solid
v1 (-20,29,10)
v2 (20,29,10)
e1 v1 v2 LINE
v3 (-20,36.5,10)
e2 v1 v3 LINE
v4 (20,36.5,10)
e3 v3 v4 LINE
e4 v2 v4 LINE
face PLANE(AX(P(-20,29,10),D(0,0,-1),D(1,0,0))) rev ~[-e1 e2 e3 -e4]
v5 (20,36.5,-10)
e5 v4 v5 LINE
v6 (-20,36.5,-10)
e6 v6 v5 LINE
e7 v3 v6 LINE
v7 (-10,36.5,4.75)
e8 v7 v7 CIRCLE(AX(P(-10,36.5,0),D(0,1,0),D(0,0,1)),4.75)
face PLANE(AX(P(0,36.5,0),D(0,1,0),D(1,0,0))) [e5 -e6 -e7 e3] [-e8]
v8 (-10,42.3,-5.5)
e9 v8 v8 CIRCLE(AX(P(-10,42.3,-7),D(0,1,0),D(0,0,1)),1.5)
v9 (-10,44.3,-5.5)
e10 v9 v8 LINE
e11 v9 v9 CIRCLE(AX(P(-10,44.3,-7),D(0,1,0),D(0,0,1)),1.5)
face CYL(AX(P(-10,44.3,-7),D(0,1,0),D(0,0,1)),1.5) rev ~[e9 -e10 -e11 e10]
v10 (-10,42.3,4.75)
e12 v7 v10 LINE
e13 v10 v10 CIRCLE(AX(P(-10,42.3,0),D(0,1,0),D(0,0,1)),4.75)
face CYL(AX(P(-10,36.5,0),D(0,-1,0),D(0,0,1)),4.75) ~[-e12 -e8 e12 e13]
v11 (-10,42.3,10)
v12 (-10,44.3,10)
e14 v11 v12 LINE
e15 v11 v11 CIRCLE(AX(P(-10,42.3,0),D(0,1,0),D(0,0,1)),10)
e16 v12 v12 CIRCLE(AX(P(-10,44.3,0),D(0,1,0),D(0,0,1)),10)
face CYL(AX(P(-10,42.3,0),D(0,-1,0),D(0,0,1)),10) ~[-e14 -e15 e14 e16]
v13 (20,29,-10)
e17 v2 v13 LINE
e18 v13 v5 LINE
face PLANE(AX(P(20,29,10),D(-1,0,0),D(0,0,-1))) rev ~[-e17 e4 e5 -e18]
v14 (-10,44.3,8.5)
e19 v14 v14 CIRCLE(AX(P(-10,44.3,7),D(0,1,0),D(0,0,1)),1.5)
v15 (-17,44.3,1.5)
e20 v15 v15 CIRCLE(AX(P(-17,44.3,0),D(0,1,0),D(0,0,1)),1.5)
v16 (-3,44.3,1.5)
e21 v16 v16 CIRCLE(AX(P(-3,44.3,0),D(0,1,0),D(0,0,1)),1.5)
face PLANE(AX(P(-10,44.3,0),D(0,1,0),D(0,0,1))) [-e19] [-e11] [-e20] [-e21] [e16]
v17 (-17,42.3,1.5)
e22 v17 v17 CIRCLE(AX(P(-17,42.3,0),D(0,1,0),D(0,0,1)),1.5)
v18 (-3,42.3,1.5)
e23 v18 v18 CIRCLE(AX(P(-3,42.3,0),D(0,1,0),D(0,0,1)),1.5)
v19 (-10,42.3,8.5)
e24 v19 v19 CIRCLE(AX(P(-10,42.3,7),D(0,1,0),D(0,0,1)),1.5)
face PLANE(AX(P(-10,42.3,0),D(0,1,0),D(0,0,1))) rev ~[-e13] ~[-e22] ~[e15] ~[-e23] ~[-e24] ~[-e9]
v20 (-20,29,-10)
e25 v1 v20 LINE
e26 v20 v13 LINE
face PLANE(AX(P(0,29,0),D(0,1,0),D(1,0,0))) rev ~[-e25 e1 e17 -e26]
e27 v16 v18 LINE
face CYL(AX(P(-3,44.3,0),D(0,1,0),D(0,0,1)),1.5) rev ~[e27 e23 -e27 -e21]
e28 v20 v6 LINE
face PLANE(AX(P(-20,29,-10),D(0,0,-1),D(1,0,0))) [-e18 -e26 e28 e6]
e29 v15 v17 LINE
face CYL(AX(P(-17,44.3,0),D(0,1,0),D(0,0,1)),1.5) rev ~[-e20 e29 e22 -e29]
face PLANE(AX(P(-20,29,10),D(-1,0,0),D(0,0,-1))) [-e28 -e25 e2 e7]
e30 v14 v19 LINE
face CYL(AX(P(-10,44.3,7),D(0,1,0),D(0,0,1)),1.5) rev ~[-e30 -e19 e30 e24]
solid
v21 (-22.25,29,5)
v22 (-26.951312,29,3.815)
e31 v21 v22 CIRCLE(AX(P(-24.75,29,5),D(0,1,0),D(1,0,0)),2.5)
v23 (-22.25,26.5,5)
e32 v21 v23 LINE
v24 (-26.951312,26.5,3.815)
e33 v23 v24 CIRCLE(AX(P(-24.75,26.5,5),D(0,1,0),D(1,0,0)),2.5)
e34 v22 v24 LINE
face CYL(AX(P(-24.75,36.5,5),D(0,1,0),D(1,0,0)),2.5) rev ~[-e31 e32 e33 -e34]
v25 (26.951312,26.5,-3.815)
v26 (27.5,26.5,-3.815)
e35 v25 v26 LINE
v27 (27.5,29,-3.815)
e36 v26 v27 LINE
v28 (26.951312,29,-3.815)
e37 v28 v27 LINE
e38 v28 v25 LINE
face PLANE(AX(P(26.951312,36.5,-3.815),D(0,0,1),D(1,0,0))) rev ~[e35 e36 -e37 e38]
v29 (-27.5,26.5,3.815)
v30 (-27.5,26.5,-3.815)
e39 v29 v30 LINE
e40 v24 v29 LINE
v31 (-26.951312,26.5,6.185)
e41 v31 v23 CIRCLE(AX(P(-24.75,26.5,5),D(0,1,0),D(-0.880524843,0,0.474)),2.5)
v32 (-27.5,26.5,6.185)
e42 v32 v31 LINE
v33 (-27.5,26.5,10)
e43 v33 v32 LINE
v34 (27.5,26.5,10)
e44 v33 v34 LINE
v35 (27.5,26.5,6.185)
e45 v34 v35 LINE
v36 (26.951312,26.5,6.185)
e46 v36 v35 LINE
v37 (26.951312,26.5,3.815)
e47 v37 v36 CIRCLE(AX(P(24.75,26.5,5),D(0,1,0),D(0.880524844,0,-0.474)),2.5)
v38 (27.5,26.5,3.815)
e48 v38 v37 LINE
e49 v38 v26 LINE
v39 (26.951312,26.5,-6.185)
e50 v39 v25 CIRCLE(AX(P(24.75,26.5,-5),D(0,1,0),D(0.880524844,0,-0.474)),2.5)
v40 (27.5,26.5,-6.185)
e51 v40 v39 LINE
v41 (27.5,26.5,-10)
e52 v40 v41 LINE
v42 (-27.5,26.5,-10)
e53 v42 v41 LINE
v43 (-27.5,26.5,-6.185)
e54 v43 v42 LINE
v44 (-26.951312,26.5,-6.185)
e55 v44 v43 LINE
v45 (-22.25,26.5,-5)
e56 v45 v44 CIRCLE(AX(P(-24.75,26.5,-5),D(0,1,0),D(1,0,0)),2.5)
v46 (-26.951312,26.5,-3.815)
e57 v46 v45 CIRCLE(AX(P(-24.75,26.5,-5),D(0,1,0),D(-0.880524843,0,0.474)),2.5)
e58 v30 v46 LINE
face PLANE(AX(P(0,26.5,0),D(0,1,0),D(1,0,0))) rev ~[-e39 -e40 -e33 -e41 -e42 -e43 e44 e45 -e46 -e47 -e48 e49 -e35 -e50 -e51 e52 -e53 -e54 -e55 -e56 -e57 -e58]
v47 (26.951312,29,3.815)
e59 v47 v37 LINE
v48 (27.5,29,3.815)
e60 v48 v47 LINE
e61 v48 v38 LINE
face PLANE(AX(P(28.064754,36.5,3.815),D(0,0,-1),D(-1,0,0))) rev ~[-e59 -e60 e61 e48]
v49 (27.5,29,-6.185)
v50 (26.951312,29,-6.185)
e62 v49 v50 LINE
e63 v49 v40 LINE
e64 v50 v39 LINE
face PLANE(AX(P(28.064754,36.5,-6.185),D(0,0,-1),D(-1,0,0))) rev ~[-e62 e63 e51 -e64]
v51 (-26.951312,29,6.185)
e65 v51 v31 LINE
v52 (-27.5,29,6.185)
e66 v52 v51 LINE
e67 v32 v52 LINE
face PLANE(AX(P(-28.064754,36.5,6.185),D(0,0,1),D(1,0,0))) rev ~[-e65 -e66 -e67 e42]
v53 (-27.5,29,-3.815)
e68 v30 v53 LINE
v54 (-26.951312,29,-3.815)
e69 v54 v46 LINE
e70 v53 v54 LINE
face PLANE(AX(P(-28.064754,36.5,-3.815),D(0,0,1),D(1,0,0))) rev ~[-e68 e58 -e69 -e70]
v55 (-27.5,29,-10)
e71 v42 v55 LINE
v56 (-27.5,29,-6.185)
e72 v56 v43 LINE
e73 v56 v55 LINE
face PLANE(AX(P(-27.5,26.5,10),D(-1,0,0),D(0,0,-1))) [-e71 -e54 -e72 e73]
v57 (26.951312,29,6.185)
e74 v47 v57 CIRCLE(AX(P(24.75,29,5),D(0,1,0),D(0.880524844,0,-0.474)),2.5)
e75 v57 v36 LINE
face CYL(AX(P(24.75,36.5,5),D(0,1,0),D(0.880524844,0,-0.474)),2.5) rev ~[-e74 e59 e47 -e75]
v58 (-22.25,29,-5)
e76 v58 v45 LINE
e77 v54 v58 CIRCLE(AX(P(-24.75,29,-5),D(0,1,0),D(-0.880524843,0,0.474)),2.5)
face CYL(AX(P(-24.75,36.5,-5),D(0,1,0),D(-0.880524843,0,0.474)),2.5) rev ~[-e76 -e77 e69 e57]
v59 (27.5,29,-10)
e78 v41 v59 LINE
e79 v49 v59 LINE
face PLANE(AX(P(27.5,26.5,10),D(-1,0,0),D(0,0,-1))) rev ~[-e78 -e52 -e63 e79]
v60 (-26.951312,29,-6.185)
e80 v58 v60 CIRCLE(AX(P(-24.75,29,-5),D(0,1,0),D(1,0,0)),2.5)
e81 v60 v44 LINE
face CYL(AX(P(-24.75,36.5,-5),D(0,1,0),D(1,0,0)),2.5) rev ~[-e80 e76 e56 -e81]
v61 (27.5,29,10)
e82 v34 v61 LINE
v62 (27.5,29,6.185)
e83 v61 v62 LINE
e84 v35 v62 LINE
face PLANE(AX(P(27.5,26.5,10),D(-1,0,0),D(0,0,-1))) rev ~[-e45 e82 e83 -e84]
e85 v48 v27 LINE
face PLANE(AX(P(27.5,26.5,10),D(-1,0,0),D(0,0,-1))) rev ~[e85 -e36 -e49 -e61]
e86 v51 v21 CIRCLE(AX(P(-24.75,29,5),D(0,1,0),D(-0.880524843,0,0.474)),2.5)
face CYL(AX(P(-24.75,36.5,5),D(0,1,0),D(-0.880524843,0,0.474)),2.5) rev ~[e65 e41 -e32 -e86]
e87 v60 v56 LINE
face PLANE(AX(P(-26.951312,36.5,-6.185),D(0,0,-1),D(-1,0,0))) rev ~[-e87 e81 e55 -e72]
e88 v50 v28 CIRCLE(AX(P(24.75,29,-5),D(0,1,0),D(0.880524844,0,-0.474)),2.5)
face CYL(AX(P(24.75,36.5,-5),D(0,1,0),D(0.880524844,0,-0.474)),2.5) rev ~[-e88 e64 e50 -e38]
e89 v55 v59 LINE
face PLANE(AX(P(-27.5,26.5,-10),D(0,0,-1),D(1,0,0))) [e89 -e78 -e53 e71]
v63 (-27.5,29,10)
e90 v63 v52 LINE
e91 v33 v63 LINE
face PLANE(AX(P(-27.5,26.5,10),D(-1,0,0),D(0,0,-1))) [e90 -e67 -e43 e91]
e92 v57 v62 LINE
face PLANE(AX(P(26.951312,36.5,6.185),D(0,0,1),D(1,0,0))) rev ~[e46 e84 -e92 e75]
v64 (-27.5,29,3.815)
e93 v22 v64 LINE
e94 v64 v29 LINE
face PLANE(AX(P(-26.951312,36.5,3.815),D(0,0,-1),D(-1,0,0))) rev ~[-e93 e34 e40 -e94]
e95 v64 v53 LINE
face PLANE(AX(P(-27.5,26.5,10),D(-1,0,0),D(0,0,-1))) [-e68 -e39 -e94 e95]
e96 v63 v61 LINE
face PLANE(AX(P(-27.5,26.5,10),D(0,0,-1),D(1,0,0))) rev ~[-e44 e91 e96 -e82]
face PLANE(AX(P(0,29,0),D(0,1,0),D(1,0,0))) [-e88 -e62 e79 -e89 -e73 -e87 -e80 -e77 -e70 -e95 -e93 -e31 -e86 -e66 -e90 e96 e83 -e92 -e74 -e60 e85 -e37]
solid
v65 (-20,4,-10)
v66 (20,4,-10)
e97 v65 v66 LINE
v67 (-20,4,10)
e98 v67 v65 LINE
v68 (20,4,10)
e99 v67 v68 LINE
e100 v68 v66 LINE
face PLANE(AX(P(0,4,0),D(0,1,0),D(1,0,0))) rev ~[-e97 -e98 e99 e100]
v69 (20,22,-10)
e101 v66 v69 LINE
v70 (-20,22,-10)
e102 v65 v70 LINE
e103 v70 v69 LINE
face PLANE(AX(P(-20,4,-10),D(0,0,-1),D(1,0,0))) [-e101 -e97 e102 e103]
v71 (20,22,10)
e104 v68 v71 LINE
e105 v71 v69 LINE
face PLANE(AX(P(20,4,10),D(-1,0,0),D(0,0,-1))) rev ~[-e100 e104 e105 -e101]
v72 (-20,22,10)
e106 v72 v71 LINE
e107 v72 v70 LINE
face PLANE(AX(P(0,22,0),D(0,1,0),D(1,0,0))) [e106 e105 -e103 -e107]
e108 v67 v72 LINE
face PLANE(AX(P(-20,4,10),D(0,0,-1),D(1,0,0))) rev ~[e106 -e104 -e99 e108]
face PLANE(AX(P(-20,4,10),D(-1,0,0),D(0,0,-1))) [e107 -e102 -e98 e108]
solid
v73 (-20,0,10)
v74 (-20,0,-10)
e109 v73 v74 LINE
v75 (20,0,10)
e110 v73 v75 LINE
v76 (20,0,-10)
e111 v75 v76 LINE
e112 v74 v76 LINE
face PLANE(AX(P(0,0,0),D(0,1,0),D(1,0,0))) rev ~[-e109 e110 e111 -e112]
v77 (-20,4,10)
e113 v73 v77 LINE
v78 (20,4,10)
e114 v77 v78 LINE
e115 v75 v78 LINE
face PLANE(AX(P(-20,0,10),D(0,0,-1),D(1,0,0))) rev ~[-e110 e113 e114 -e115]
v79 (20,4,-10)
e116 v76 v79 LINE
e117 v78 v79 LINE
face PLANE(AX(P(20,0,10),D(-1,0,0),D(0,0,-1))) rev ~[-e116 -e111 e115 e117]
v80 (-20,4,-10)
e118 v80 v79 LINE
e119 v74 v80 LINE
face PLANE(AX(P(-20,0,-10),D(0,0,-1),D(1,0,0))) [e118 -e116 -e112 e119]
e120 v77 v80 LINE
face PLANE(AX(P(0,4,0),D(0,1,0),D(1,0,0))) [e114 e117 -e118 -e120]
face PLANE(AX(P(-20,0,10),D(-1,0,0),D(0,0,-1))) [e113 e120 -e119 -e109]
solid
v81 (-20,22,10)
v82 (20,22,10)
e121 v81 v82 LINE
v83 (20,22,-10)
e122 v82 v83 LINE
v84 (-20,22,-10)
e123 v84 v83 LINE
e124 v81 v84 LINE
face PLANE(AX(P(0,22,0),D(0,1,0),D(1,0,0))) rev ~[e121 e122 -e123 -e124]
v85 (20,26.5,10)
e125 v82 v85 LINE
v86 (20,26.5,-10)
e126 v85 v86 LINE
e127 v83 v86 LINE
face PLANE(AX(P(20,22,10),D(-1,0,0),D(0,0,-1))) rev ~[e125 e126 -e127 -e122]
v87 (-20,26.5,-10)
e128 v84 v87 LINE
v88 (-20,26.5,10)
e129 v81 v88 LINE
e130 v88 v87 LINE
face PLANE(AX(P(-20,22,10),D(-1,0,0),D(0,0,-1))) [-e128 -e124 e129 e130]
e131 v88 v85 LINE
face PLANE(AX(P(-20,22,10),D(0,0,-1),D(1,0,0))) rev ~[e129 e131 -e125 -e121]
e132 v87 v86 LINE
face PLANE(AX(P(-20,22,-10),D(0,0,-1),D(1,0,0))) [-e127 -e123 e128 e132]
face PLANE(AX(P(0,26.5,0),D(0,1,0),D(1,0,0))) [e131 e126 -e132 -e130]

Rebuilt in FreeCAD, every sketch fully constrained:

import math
import FreeCAD as App
import Part
import Sketcher
Q = App.Units.Quantity

doc = App.newDocument("Part")
body = doc.addObject("PartDesign::Body", "Body")

# Sketch on XZ plane
sketch1 = doc.addObject("Sketcher::SketchObject", "Sketch")
body.addObject(sketch1)
sketch1.AttachmentSupport = (doc.XZ_Plane, [""])
sketch1.MapMode = "FlatFace"
sketch1.addGeometry(Part.LineSegment(App.Vector(-20, -10, 0), App.Vector(-20, 10, 0)), False)
sketch1.addGeometry(Part.LineSegment(App.Vector(-20, 10, 0), App.Vector(20, 10, 0)), False)
sketch1.addGeometry(Part.LineSegment(App.Vector(20, 10, 0), App.Vector(20, -10, 0)), False)
sketch1.addGeometry(Part.LineSegment(App.Vector(20, -10, 0), App.Vector(-20, -10, 0)), False)
sketch1.addConstraint(Sketcher.Constraint("Coincident", 0, 2, 1, 1))
sketch1.addConstraint(Sketcher.Constraint("Coincident", 1, 2, 2, 1))
sketch1.addConstraint(Sketcher.Constraint("Coincident", 2, 2, 3, 1))
sketch1.addConstraint(Sketcher.Constraint("Coincident", 3, 2, 0, 1))
sketch1.addConstraint(Sketcher.Constraint("Vertical", 0))
sketch1.addConstraint(Sketcher.Constraint("Horizontal", 1))
sketch1.addConstraint(Sketcher.Constraint("Vertical", 2))
sketch1.addConstraint(Sketcher.Constraint("Horizontal", 3))
sketch1.addConstraint(Sketcher.Constraint("Symmetric", 0, 2, 2, 2, -1, 1))
sketch1.addConstraint(Sketcher.Constraint("DistanceX", 1, 1, 1, 2, Q("40 mm")))
sketch1.addConstraint(Sketcher.Constraint("DistanceY", 0, 1, 0, 2, Q("20 mm")))
pad1 = doc.addObject("PartDesign::Pad", "Pad")
body.addObject(pad1)
pad1.Profile = sketch1
pad1.Length = 4
pad1.Reversed = True
body2 = doc.addObject("PartDesign::Body", "Body001")

# Sketch on XZ plane
sketch2 = doc.addObject("Sketcher::SketchObject", "Sketch001")
body2.addObject(sketch2)
sketch2.AttachmentSupport = (doc.getObject("XZ_Plane001"), [""])
sketch2.MapMode = "FlatFace"
sketch2.AttachmentOffset = App.Placement(App.Vector(0, 0, -4), App.Rotation())
sketch2.addGeometry(Part.LineSegment(App.Vector(-20, -10, 0), App.Vector(-20, 10, 0)), False)
sketch2.addGeometry(Part.LineSegment(App.Vector(-20, 10, 0), App.Vector(20, 10, 0)), False)
sketch2.addGeometry(Part.LineSegment(App.Vector(20, 10, 0), App.Vector(20, -10, 0)), False)
sketch2.addGeometry(Part.LineSegment(App.Vector(20, -10, 0), App.Vector(-20, -10, 0)), False)
sketch2.addConstraint(Sketcher.Constraint("Coincident", 0, 2, 1, 1))
sketch2.addConstraint(Sketcher.Constraint("Coincident", 1, 2, 2, 1))
sketch2.addConstraint(Sketcher.Constraint("Coincident", 2, 2, 3, 1))
sketch2.addConstraint(Sketcher.Constraint("Coincident", 3, 2, 0, 1))
sketch2.addConstraint(Sketcher.Constraint("Vertical", 0))
sketch2.addConstraint(Sketcher.Constraint("Horizontal", 1))
sketch2.addConstraint(Sketcher.Constraint("Vertical", 2))
sketch2.addConstraint(Sketcher.Constraint("Horizontal", 3))
sketch2.addConstraint(Sketcher.Constraint("Symmetric", 0, 2, 2, 2, -1, 1))
sketch2.addConstraint(Sketcher.Constraint("DistanceX", 1, 1, 1, 2, Q("40 mm")))
sketch2.addConstraint(Sketcher.Constraint("DistanceY", 0, 1, 0, 2, Q("20 mm")))
pad2 = doc.addObject("PartDesign::Pad", "Pad001")
body2.addObject(pad2)
pad2.Profile = sketch2
pad2.Length = 18
pad2.Reversed = True
body3 = doc.addObject("PartDesign::Body", "Body002")

# Sketch on XZ plane
sketch3 = doc.addObject("Sketcher::SketchObject", "Sketch002")
body3.addObject(sketch3)
sketch3.AttachmentSupport = (doc.getObject("XZ_Plane002"), [""])
sketch3.MapMode = "FlatFace"
sketch3.AttachmentOffset = App.Placement(App.Vector(0, 0, -22), App.Rotation())
sketch3.addGeometry(Part.LineSegment(App.Vector(-20, -10, 0), App.Vector(-20, 10, 0)), False)
sketch3.addGeometry(Part.LineSegment(App.Vector(-20, 10, 0), App.Vector(20, 10, 0)), False)
sketch3.addGeometry(Part.LineSegment(App.Vector(20, 10, 0), App.Vector(20, -10, 0)), False)
sketch3.addGeometry(Part.LineSegment(App.Vector(20, -10, 0), App.Vector(-20, -10, 0)), False)
sketch3.addConstraint(Sketcher.Constraint("Coincident", 0, 2, 1, 1))
sketch3.addConstraint(Sketcher.Constraint("Coincident", 1, 2, 2, 1))
sketch3.addConstraint(Sketcher.Constraint("Coincident", 2, 2, 3, 1))
sketch3.addConstraint(Sketcher.Constraint("Coincident", 3, 2, 0, 1))
sketch3.addConstraint(Sketcher.Constraint("Vertical", 0))
sketch3.addConstraint(Sketcher.Constraint("Horizontal", 1))
sketch3.addConstraint(Sketcher.Constraint("Vertical", 2))
sketch3.addConstraint(Sketcher.Constraint("Horizontal", 3))
sketch3.addConstraint(Sketcher.Constraint("Symmetric", 0, 2, 2, 2, -1, 1))
sketch3.addConstraint(Sketcher.Constraint("DistanceX", 1, 1, 1, 2, Q("40 mm")))
sketch3.addConstraint(Sketcher.Constraint("DistanceY", 0, 1, 0, 2, Q("20 mm")))
pad3 = doc.addObject("PartDesign::Pad", "Pad002")
body3.addObject(pad3)
pad3.Profile = sketch3
pad3.Length = 4.5
pad3.Reversed = True
body4 = doc.addObject("PartDesign::Body", "Body003")

# Sketch on XZ plane
sketch4 = doc.addObject("Sketcher::SketchObject", "Sketch003")
body4.addObject(sketch4)
sketch4.AttachmentSupport = (doc.getObject("XZ_Plane003"), [""])
sketch4.MapMode = "FlatFace"
sketch4.AttachmentOffset = App.Placement(App.Vector(0, 0, -26.5), App.Rotation())
sketch4.addGeometry(Part.LineSegment(App.Vector(-27.5, -10, 0), App.Vector(-27.5, 10, 0)), False)
sketch4.addGeometry(Part.LineSegment(App.Vector(-27.5, 10, 0), App.Vector(27.5, 10, 0)), False)
sketch4.addGeometry(Part.LineSegment(App.Vector(27.5, 10, 0), App.Vector(27.5, -10, 0)), False)
sketch4.addGeometry(Part.LineSegment(App.Vector(27.5, -10, 0), App.Vector(-27.5, -10, 0)), False)
sketch4.addConstraint(Sketcher.Constraint("Coincident", 0, 2, 1, 1))
sketch4.addConstraint(Sketcher.Constraint("Coincident", 1, 2, 2, 1))
sketch4.addConstraint(Sketcher.Constraint("Coincident", 2, 2, 3, 1))
sketch4.addConstraint(Sketcher.Constraint("Coincident", 3, 2, 0, 1))
sketch4.addConstraint(Sketcher.Constraint("Vertical", 0))
sketch4.addConstraint(Sketcher.Constraint("Horizontal", 1))
sketch4.addConstraint(Sketcher.Constraint("Vertical", 2))
sketch4.addConstraint(Sketcher.Constraint("Horizontal", 3))
sketch4.addConstraint(Sketcher.Constraint("Symmetric", 0, 2, 2, 2, -1, 1))
sketch4.addConstraint(Sketcher.Constraint("DistanceX", 1, 1, 1, 2, Q("55 mm")))
sketch4.addConstraint(Sketcher.Constraint("DistanceY", 0, 1, 0, 2, Q("20 mm")))
pad4 = doc.addObject("PartDesign::Pad", "Pad003")
body4.addObject(pad4)
pad4.Profile = sketch4
pad4.Length = 2.5
pad4.Reversed = True

# Sketch on XZ plane
sketch5 = doc.addObject("Sketcher::SketchObject", "Sketch004")
body4.addObject(sketch5)
sketch5.AttachmentSupport = (doc.getObject("XZ_Plane003"), [""])
sketch5.MapMode = "FlatFace"
sketch5.AttachmentOffset = App.Placement(App.Vector(0, 0, -36.5), App.Rotation())
sketch5.addGeometry(Part.ArcOfCircle(Part.Circle(App.Vector(-24.75, -5, 0), App.Vector(0, 0, 1), 2.5), math.radians(-151.70574), math.radians(0)), False)
sketch5.addGeometry(Part.LineSegment(App.Vector(-26.951312, -6.185, 0), App.Vector(-28.064754, -6.185, 0)), False)
sketch5.addGeometry(Part.LineSegment(App.Vector(-28.064754, -6.185, 0), App.Vector(-28.064754, -3.815, 0)), False)
sketch5.addGeometry(Part.LineSegment(App.Vector(-28.064754, -3.815, 0), App.Vector(-26.951312, -3.815, 0)), False)
sketch5.addGeometry(Part.ArcOfCircle(Part.Circle(App.Vector(-24.75, -5, 0), App.Vector(0, 0, 1), 2.5), math.radians(0), math.radians(151.70574)), False)
sketch5.addGeometry(Part.ArcOfCircle(Part.Circle(App.Vector(-24.75, 5, 0), App.Vector(0, 0, 1), 2.5), math.radians(-151.70574), math.radians(0)), False)
sketch5.addGeometry(Part.LineSegment(App.Vector(-26.951312, 3.815, 0), App.Vector(-28.064754, 3.815, 0)), False)
sketch5.addGeometry(Part.LineSegment(App.Vector(-28.064754, 3.815, 0), App.Vector(-28.064754, 6.185, 0)), False)
sketch5.addGeometry(Part.LineSegment(App.Vector(-28.064754, 6.185, 0), App.Vector(-26.951312, 6.185, 0)), False)
sketch5.addGeometry(Part.ArcOfCircle(Part.Circle(App.Vector(-24.75, 5, 0), App.Vector(0, 0, 1), 2.5), math.radians(0), math.radians(151.70574)), False)
sketch5.addGeometry(Part.ArcOfCircle(Part.Circle(App.Vector(24.75, -5, 0), App.Vector(0, 0, 1), 2.5), math.radians(28.29426), math.radians(331.70574)), False)
sketch5.addGeometry(Part.LineSegment(App.Vector(26.951312, -3.815, 0), App.Vector(28.064754, -3.815, 0)), False)
sketch5.addGeometry(Part.LineSegment(App.Vector(28.064754, -3.815, 0), App.Vector(28.064754, -6.185, 0)), False)
sketch5.addGeometry(Part.LineSegment(App.Vector(28.064754, -6.185, 0), App.Vector(26.951312, -6.185, 0)), False)
sketch5.addGeometry(Part.ArcOfCircle(Part.Circle(App.Vector(24.75, 5, 0), App.Vector(0, 0, 1), 2.5), math.radians(28.29426), math.radians(331.70574)), False)
sketch5.addGeometry(Part.LineSegment(App.Vector(26.951312, 6.185, 0), App.Vector(28.064754, 6.185, 0)), False)
sketch5.addGeometry(Part.LineSegment(App.Vector(28.064754, 6.185, 0), App.Vector(28.064754, 3.815, 0)), False)
sketch5.addGeometry(Part.LineSegment(App.Vector(28.064754, 3.815, 0), App.Vector(26.951312, 3.815, 0)), False)
sketch5.addConstraint(Sketcher.Constraint("Coincident", 0, 1, 1, 1))
sketch5.addConstraint(Sketcher.Constraint("Coincident", 1, 2, 2, 1))
sketch5.addConstraint(Sketcher.Constraint("Coincident", 2, 2, 3, 1))
sketch5.addConstraint(Sketcher.Constraint("Coincident", 3, 2, 4, 2))
sketch5.addConstraint(Sketcher.Constraint("Tangent", 4, 1, 0, 2))
sketch5.addConstraint(Sketcher.Constraint("Coincident", 5, 1, 6, 1))
sketch5.addConstraint(Sketcher.Constraint("Coincident", 6, 2, 7, 1))
sketch5.addConstraint(Sketcher.Constraint("Coincident", 7, 2, 8, 1))
sketch5.addConstraint(Sketcher.Constraint("Coincident", 8, 2, 9, 2))
sketch5.addConstraint(Sketcher.Constraint("Tangent", 9, 1, 5, 2))
sketch5.addConstraint(Sketcher.Constraint("Coincident", 10, 1, 11, 1))
sketch5.addConstraint(Sketcher.Constraint("Coincident", 11, 2, 12, 1))
sketch5.addConstraint(Sketcher.Constraint("Coincident", 12, 2, 13, 1))
sketch5.addConstraint(Sketcher.Constraint("Coincident", 13, 2, 10, 2))
sketch5.addConstraint(Sketcher.Constraint("Coincident", 14, 1, 15, 1))
sketch5.addConstraint(Sketcher.Constraint("Coincident", 15, 2, 16, 1))
sketch5.addConstraint(Sketcher.Constraint("Coincident", 16, 2, 17, 1))
sketch5.addConstraint(Sketcher.Constraint("Coincident", 17, 2, 14, 2))
sketch5.addConstraint(Sketcher.Constraint("Horizontal", 1))
sketch5.addConstraint(Sketcher.Constraint("Vertical", 2))
sketch5.addConstraint(Sketcher.Constraint("Horizontal", 3))
sketch5.addConstraint(Sketcher.Constraint("Horizontal", 6))
sketch5.addConstraint(Sketcher.Constraint("Vertical", 7))
sketch5.addConstraint(Sketcher.Constraint("Horizontal", 8))
sketch5.addConstraint(Sketcher.Constraint("Horizontal", 11))
sketch5.addConstraint(Sketcher.Constraint("Vertical", 12))
sketch5.addConstraint(Sketcher.Constraint("Horizontal", 13))
sketch5.addConstraint(Sketcher.Constraint("Horizontal", 15))
sketch5.addConstraint(Sketcher.Constraint("Vertical", 16))
sketch5.addConstraint(Sketcher.Constraint("Horizontal", 17))
sketch5.addConstraint(Sketcher.Constraint("Equal", 0, 4))
sketch5.addConstraint(Sketcher.Constraint("Equal", 4, 5))
sketch5.addConstraint(Sketcher.Constraint("Equal", 5, 9))
sketch5.addConstraint(Sketcher.Constraint("Equal", 9, 10))
sketch5.addConstraint(Sketcher.Constraint("Equal", 10, 14))
sketch5.addConstraint(Sketcher.Constraint("Symmetric", 5, 3, 10, 3, -1, 1))
sketch5.addConstraint(Sketcher.Constraint("Symmetric", 0, 3, 14, 3, -1, 1))
sketch5.addConstraint(Sketcher.Constraint("Symmetric", 6, 2, 11, 2, -1, 1))
sketch5.addConstraint(Sketcher.Constraint("Symmetric", 1, 2, 15, 2, -1, 1))
sketch5.addConstraint(Sketcher.Constraint("Symmetric", 0, 3, 10, 3, -2))
sketch5.addConstraint(Sketcher.Constraint("Symmetric", 2, 2, 11, 2, -2))
sketch5.addConstraint(Sketcher.Constraint("Horizontal", 10, 3, 4, 1))
sketch5.addConstraint(Sketcher.Constraint("Horizontal", 14, 3, 9, 1))
sketch5.addConstraint(Sketcher.Constraint("Horizontal", 1, 2, 12, 2))
sketch5.addConstraint(Sketcher.Constraint("Horizontal", 8, 2, 14, 1))
sketch5.addConstraint(Sketcher.Constraint("Horizontal", 6, 2, 16, 2))
sketch5.addConstraint(Sketcher.Constraint("Vertical", 0, 1, 3, 2))
sketch5.addConstraint(Sketcher.Constraint("Radius", 0, Q("2.5 mm")))
sketch5.addConstraint(Sketcher.Constraint("DistanceY", 0, 3, -1, 1, Q("5 mm")))
sketch5.addConstraint(Sketcher.Constraint("DistanceY", 2, 1, 2, 2, Q("2.37 mm")))
sketch5.addConstraint(Sketcher.Constraint("DistanceX", 0, 3, 10, 3, Q("49.5 mm")))
sketch5.addConstraint(Sketcher.Constraint("DistanceX", 1, 2, 1, 1, Q("1.113442 mm")))
pocket1 = doc.addObject("PartDesign::Pocket", "Pocket")
body4.addObject(pocket1)
pocket1.Profile = sketch5
pocket1.Type = "ThroughAll"
pocket1.Reversed = True
body5 = doc.addObject("PartDesign::Body", "Body004")

# Sketch on XZ plane
sketch6 = doc.addObject("Sketcher::SketchObject", "Sketch005")
body5.addObject(sketch6)
sketch6.AttachmentSupport = (doc.getObject("XZ_Plane004"), [""])
sketch6.MapMode = "FlatFace"
sketch6.AttachmentOffset = App.Placement(App.Vector(0, 0, -29), App.Rotation())
sketch6.addGeometry(Part.LineSegment(App.Vector(-20, -10, 0), App.Vector(-20, 10, 0)), False)
sketch6.addGeometry(Part.LineSegment(App.Vector(-20, 10, 0), App.Vector(20, 10, 0)), False)
sketch6.addGeometry(Part.LineSegment(App.Vector(20, 10, 0), App.Vector(20, -10, 0)), False)
sketch6.addGeometry(Part.LineSegment(App.Vector(20, -10, 0), App.Vector(-20, -10, 0)), False)
sketch6.addConstraint(Sketcher.Constraint("Coincident", 0, 2, 1, 1))
sketch6.addConstraint(Sketcher.Constraint("Coincident", 1, 2, 2, 1))
sketch6.addConstraint(Sketcher.Constraint("Coincident", 2, 2, 3, 1))
sketch6.addConstraint(Sketcher.Constraint("Coincident", 3, 2, 0, 1))
sketch6.addConstraint(Sketcher.Constraint("Vertical", 0))
sketch6.addConstraint(Sketcher.Constraint("Horizontal", 1))
sketch6.addConstraint(Sketcher.Constraint("Vertical", 2))
sketch6.addConstraint(Sketcher.Constraint("Horizontal", 3))
sketch6.addConstraint(Sketcher.Constraint("Symmetric", 0, 2, 2, 2, -1, 1))
sketch6.addConstraint(Sketcher.Constraint("DistanceX", 1, 1, 1, 2, Q("40 mm")))
sketch6.addConstraint(Sketcher.Constraint("DistanceY", 0, 1, 0, 2, Q("20 mm")))
pad5 = doc.addObject("PartDesign::Pad", "Pad004")
body5.addObject(pad5)
pad5.Profile = sketch6
pad5.Length = 7.5
pad5.Reversed = True

# Sketch on XZ plane
sketch7 = doc.addObject("Sketcher::SketchObject", "Sketch006")
body5.addObject(sketch7)
sketch7.AttachmentSupport = (doc.getObject("XZ_Plane004"), [""])
sketch7.MapMode = "FlatFace"
sketch7.AttachmentOffset = App.Placement(App.Vector(0, 0, -36.5), App.Rotation())
sketch7.addGeometry(Part.Circle(App.Vector(-10, 0, 0), App.Vector(0, 0, 1), 4.75), False)
sketch7.addConstraint(Sketcher.Constraint("PointOnObject", 0, 3, -1))
sketch7.addConstraint(Sketcher.Constraint("Diameter", 0, Q("9.5 mm")))
sketch7.addConstraint(Sketcher.Constraint("DistanceX", 0, 3, -1, 1, Q("10 mm")))
pad6 = doc.addObject("PartDesign::Pad", "Pad005")
body5.addObject(pad6)
pad6.Profile = sketch7
pad6.Length = 5.8
pad6.Reversed = True

# Sketch on XZ plane
sketch8 = doc.addObject("Sketcher::SketchObject", "Sketch007")
body5.addObject(sketch8)
sketch8.AttachmentSupport = (doc.getObject("XZ_Plane004"), [""])
sketch8.MapMode = "FlatFace"
sketch8.AttachmentOffset = App.Placement(App.Vector(0, 0, -42.3), App.Rotation())
sketch8.addGeometry(Part.Circle(App.Vector(-10, 0, 0), App.Vector(0, 0, 1), 10), False)
sketch8.addConstraint(Sketcher.Constraint("PointOnObject", 0, 3, -1))
sketch8.addConstraint(Sketcher.Constraint("Diameter", 0, Q("20 mm")))
sketch8.addConstraint(Sketcher.Constraint("DistanceX", 0, 3, -1, 1, Q("10 mm")))
pad7 = doc.addObject("PartDesign::Pad", "Pad006")
body5.addObject(pad7)
pad7.Profile = sketch8
pad7.Length = 2
pad7.Reversed = True

# Sketch on XZ plane
sketch9 = doc.addObject("Sketcher::SketchObject", "Sketch008")
body5.addObject(sketch9)
sketch9.AttachmentSupport = (doc.getObject("XZ_Plane004"), [""])
sketch9.MapMode = "FlatFace"
sketch9.AttachmentOffset = App.Placement(App.Vector(0, 0, -44.3), App.Rotation())
sketch9.addGeometry(Part.Circle(App.Vector(-10, 0, 0), App.Vector(0, 0, 1), 2.75), False)
sketch9.addConstraint(Sketcher.Constraint("PointOnObject", 0, 3, -1))
sketch9.addConstraint(Sketcher.Constraint("Diameter", 0, Q("5.5 mm")))
sketch9.addConstraint(Sketcher.Constraint("DistanceX", 0, 3, -1, 1, Q("10 mm")))
pad8 = doc.addObject("PartDesign::Pad", "Pad007")
body5.addObject(pad8)
pad8.Profile = sketch9
pad8.Length = 2.5
pad8.Reversed = True

# Sketch on XZ plane
sketch10 = doc.addObject("Sketcher::SketchObject", "Sketch009")
body5.addObject(sketch10)
sketch10.AttachmentSupport = (doc.getObject("XZ_Plane004"), [""])
sketch10.MapMode = "FlatFace"
sketch10.AttachmentOffset = App.Placement(App.Vector(0, 0, -44.3), App.Rotation())
sketch10.addGeometry(Part.Circle(App.Vector(-10, -7, 0), App.Vector(0, 0, 1), 1.5), False)
sketch10.addGeometry(Part.Circle(App.Vector(-17, 0, 0), App.Vector(0, 0, 1), 1.5), False)
sketch10.addGeometry(Part.Circle(App.Vector(-10, 7, 0), App.Vector(0, 0, 1), 1.5), False)
sketch10.addGeometry(Part.Circle(App.Vector(-3, 0, 0), App.Vector(0, 0, 1), 1.5), False)
sketch10.addConstraint(Sketcher.Constraint("Equal", 0, 1))
sketch10.addConstraint(Sketcher.Constraint("Equal", 1, 2))
sketch10.addConstraint(Sketcher.Constraint("Equal", 2, 3))
sketch10.addConstraint(Sketcher.Constraint("Symmetric", 0, 3, 2, 3, -1))
sketch10.addConstraint(Sketcher.Constraint("PointOnObject", 1, 3, -1))
sketch10.addConstraint(Sketcher.Constraint("PointOnObject", 3, 3, -1))
sketch10.addConstraint(Sketcher.Constraint("Diameter", 0, Q("3 mm")))
sketch10.addConstraint(Sketcher.Constraint("DistanceX", 0, 3, -1, 1, Q("10 mm")))
sketch10.addConstraint(Sketcher.Constraint("DistanceY", 0, 3, -1, 1, Q("7 mm")))
sketch10.addConstraint(Sketcher.Constraint("DistanceX", 1, 3, -1, 1, Q("17 mm")))
sketch10.addConstraint(Sketcher.Constraint("DistanceX", 3, 3, -1, 1, Q("3 mm")))
pocket2 = doc.addObject("PartDesign::Pocket", "Pocket001")
body5.addObject(pocket2)
pocket2.Profile = sketch10
pocket2.Length = 2.8
pocket2.Reversed = True

# Sketch on XZ plane
sketch11 = doc.addObject("Sketcher::SketchObject", "Sketch010")
body5.addObject(sketch11)
sketch11.AttachmentSupport = (doc.getObject("XZ_Plane004"), [""])
sketch11.MapMode = "FlatFace"
sketch11.AttachmentOffset = App.Placement(App.Vector(0, 0, -46.8), App.Rotation())
sketch11.addGeometry(Part.LineSegment(App.Vector(-9.251608, 1.234197, 0), App.Vector(-8.556958, -0.031028, 0)), False)
sketch11.addGeometry(Part.LineSegment(App.Vector(-8.556958, -0.031028, 0), App.Vector(-9.30535, -1.265225, 0)), False)
sketch11.addGeometry(Part.LineSegment(App.Vector(-9.30535, -1.265225, 0), App.Vector(-10.748392, -1.234197, 0)), False)
sketch11.addGeometry(Part.LineSegment(App.Vector(-10.748392, -1.234197, 0), App.Vector(-11.443042, 0.031028, 0)), False)
sketch11.addGeometry(Part.LineSegment(App.Vector(-11.443042, 0.031028, 0), App.Vector(-10.69465, 1.265225, 0)), False)
sketch11.addGeometry(Part.LineSegment(App.Vector(-10.69465, 1.265225, 0), App.Vector(-9.251608, 1.234197, 0)), False)
sketch11.addConstraint(Sketcher.Constraint("Coincident", 0, 2, 1, 1))
sketch11.addConstraint(Sketcher.Constraint("Coincident", 1, 2, 2, 1))
sketch11.addConstraint(Sketcher.Constraint("Coincident", 2, 2, 3, 1))
sketch11.addConstraint(Sketcher.Constraint("Coincident", 3, 2, 4, 1))
sketch11.addConstraint(Sketcher.Constraint("Coincident", 4, 2, 5, 1))
sketch11.addConstraint(Sketcher.Constraint("Coincident", 5, 2, 0, 1))
sketch11.addConstraint(Sketcher.Constraint("Parallel", 0, 3))
sketch11.addConstraint(Sketcher.Constraint("Parallel", 1, 4))
sketch11.addConstraint(Sketcher.Constraint("Parallel", 2, 5))
sketch11.addConstraint(Sketcher.Constraint("Equal", 0, 1))
sketch11.addConstraint(Sketcher.Constraint("Equal", 1, 2))
sketch11.addConstraint(Sketcher.Constraint("Equal", 2, 3))
sketch11.addConstraint(Sketcher.Constraint("DistanceX", 4, 2, 1, 2, Q("1.3893 mm")))
sketch11.addConstraint(Sketcher.Constraint("DistanceY", 0, 2, -1, 1, Q("0.031028 mm")))
sketch11.addConstraint(Sketcher.Constraint("DistanceX", 1, 2, -1, 1, Q("9.30535 mm")))
sketch11.addConstraint(Sketcher.Constraint("DistanceY", -1, 1, 3, 2, Q("0.031028 mm")))
sketch11.addConstraint(Sketcher.Constraint("DistanceY", 1, 2, 2, 2, Q("0.031028 mm")))
sketch11.addConstraint(Sketcher.Constraint("DistanceY", 2, 2, 0, 2, Q("1.203169 mm")))
pocket3 = doc.addObject("PartDesign::Pocket", "Pocket002")
body5.addObject(pocket3)
pocket3.Profile = sketch11
pocket3.Length = 1
pocket3.Reversed = True

# Sketch on XZ plane
sketch12 = doc.addObject("Sketcher::SketchObject", "Sketch011")
body5.addObject(sketch12)
sketch12.AttachmentSupport = (doc.getObject("XZ_Plane004"), [""])
sketch12.MapMode = "FlatFace"
sketch12.AttachmentOffset = App.Placement(App.Vector(0, 0, -46.8), App.Rotation())
sketch12.addGeometry(Part.Circle(App.Vector(-10, 0, 0), App.Vector(0, 0, 1), 2.75), False)
sketch12.addConstraint(Sketcher.Constraint("PointOnObject", 0, 3, -1))
sketch12.addConstraint(Sketcher.Constraint("Diameter", 0, Q("5.5 mm")))
sketch12.addConstraint(Sketcher.Constraint("DistanceX", 0, 3, -1, 1, Q("10 mm")))
pocket4 = doc.addObject("PartDesign::Pocket", "Pocket003")
body5.addObject(pocket4)
pocket4.Profile = sketch12
pocket4.Length = 2.5
pocket4.Reversed = True

doc.recompute()
